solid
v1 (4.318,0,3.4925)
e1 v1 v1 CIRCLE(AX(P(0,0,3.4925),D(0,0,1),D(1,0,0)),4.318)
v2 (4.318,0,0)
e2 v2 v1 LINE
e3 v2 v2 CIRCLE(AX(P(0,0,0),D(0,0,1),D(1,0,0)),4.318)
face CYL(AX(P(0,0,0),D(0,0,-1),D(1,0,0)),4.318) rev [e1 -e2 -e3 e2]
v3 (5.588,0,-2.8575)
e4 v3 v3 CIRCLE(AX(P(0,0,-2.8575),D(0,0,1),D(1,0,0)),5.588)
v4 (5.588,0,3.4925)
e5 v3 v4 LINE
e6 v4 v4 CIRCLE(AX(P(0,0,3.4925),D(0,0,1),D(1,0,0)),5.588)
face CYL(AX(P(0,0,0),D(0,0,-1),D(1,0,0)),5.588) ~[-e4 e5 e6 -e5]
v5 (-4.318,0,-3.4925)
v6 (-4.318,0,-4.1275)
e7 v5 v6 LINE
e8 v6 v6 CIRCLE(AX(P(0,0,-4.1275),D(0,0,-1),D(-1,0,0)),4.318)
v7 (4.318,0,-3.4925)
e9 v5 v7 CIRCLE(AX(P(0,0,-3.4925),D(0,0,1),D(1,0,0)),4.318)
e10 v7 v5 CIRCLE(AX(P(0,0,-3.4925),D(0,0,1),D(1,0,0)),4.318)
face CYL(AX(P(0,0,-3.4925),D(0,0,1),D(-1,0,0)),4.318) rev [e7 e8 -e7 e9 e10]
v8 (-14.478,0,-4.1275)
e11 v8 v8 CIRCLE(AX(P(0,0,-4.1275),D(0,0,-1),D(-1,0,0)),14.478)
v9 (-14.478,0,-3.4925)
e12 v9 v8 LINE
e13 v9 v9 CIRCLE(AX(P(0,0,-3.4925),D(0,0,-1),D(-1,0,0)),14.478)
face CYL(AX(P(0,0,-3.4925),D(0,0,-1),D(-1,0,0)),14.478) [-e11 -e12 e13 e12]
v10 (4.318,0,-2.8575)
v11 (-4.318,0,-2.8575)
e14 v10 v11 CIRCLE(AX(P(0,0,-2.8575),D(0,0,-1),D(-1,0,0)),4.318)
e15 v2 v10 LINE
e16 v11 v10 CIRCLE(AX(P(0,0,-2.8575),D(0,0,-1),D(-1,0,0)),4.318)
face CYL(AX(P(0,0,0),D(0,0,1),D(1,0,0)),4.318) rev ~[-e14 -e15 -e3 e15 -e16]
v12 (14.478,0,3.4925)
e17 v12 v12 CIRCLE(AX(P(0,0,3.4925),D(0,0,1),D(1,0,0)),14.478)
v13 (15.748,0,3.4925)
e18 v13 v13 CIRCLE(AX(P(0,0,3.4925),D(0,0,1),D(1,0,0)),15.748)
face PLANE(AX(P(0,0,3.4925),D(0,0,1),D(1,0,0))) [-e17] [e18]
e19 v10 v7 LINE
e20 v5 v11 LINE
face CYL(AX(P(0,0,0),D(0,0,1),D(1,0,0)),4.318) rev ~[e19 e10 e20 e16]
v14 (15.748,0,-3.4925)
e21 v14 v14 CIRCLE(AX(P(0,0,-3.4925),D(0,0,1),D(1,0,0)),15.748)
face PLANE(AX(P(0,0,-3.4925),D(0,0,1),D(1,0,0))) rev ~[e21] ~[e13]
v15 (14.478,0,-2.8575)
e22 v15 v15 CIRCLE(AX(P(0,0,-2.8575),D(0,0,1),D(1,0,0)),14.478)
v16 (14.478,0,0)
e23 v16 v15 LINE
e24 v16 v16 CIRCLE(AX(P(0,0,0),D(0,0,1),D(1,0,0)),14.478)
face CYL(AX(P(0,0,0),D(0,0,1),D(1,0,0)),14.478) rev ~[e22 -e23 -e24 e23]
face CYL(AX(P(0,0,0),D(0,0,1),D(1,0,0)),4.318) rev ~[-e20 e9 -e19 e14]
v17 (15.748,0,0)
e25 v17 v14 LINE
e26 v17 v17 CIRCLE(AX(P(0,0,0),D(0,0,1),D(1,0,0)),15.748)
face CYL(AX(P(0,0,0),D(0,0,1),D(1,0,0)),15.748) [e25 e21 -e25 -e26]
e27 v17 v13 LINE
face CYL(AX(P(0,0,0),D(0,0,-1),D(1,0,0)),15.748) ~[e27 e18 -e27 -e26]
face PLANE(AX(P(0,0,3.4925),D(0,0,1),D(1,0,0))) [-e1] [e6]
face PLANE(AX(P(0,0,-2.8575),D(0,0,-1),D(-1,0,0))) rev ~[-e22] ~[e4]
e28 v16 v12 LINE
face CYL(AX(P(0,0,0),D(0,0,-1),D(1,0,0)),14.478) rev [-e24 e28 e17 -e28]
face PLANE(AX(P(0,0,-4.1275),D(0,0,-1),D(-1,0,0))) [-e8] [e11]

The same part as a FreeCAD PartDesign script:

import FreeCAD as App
import Part
import Sketcher
from FreeCAD import Vector
Q = App.Units.Quantity

doc = App.newDocument("Part")
params = doc.addObject("Spreadsheet::Sheet", "Params")
for row, (alias, value) in enumerate([
    ("sketch1_diameter", "0.44 in"),
    ("sketch1_diameter2", "0.34 in"),
    ("sketch1_diameter3", "1.24 in"),
    ("sketch1_diameter4", "1.14 in"),
    ("pad1_length", "0.275 in"),
    ("sketch2_diameter", "1.14 in"),
    ("sketch2_diameter2", "0.34 in"),
    ("pad2_length", "0.05 in"),
], start=1):
    params.set(f"A{row}", alias)
    params.set(f"B{row}", "=" + value)
    params.setAlias(f"B{row}", alias)

body = doc.addObject("PartDesign::Body", "Body")
body.AllowCompound = True

sketch1 = doc.addObject("Sketcher::SketchObject", "Sketch")
body.addObject(sketch1)
sketch1.AttachmentSupport = (doc.XY_Plane, [""])
sketch1.MapMode = "FlatFace"
sketch1.addGeometry(Part.Circle(Vector(0, 0, 0), Vector(0, 0, 1), 5.588), False)
sketch1.addGeometry(Part.Circle(Vector(0, 0, 0), Vector(0, 0, 1), 4.318), False)
sketch1.addGeometry(Part.Circle(Vector(0, 0, 0), Vector(0, 0, 1), 15.748), False)
sketch1.addGeometry(Part.Circle(Vector(0, 0, 0), Vector(0, 0, 1), 14.478), False)
sketch1.addConstraint(Sketcher.Constraint("Coincident", 0, 3, -1, 1))
sketch1.addConstraint(Sketcher.Constraint("Coincident", 1, 3, -1, 1))
sketch1.addConstraint(Sketcher.Constraint("Coincident", 2, 3, -1, 1))
sketch1.addConstraint(Sketcher.Constraint("Coincident", 3, 3, -1, 1))
sketch1.addConstraint(Sketcher.Constraint("Diameter", 0, Q("0.44 in")))
sketch1.addConstraint(Sketcher.Constraint("Diameter", 1, Q("0.34 in")))
sketch1.addConstraint(Sketcher.Constraint("Diameter", 2, Q("1.24 in")))
sketch1.addConstraint(Sketcher.Constraint("Diameter", 3, Q("1.14 in")))
sketch1.setExpression("Constraints[4]", "Params.sketch1_diameter")
sketch1.setExpression("Constraints[5]", "Params.sketch1_diameter2")
sketch1.setExpression("Constraints[6]", "Params.sketch1_diameter3")
sketch1.setExpression("Constraints[7]", "Params.sketch1_diameter4")
pad1 = doc.addObject("PartDesign::Pad", "Pad")
body.addObject(pad1)
pad1.Profile = sketch1
pad1.setExpression("Length", "Params.pad1_length")
pad1.Midplane = True

sketch2 = doc.addObject("Sketcher::SketchObject", "Sketch001")
body.addObject(sketch2)
sketch2.AttachmentSupport = (doc.XY_Plane, [""])
sketch2.MapMode = "FlatFace"
sketch2.AttachmentOffset = App.Placement(Vector(0, 0, -0.1375 * 25.4), App.Rotation())
sketch2.addGeometry(Part.Circle(Vector(0, 0, 0), Vector(0, 0, 1), 14.478), False)
sketch2.addGeometry(Part.Circle(Vector(0, 0, 0), Vector(0, 0, 1), 4.318), False)
sketch2.addConstraint(Sketcher.Constraint("Coincident", 0, 3, -1, 1))
sketch2.addConstraint(Sketcher.Constraint("Coincident", 1, 3, -1, 1))
sketch2.addConstraint(Sketcher.Constraint("Diameter", 0, Q("1.14 in")))
sketch2.addConstraint(Sketcher.Constraint("Diameter", 1, Q("0.34 in")))
sketch2.setExpression("Constraints[2]", "Params.sketch2_diameter")
sketch2.setExpression("Constraints[3]", "Params.sketch2_diameter2")
pad2 = doc.addObject("PartDesign::Pad", "Pad001")
body.addObject(pad2)
pad2.Profile = sketch2
pad2.setExpression("Length", "Params.pad2_length")
pad2.Midplane = True

doc.recompute()
